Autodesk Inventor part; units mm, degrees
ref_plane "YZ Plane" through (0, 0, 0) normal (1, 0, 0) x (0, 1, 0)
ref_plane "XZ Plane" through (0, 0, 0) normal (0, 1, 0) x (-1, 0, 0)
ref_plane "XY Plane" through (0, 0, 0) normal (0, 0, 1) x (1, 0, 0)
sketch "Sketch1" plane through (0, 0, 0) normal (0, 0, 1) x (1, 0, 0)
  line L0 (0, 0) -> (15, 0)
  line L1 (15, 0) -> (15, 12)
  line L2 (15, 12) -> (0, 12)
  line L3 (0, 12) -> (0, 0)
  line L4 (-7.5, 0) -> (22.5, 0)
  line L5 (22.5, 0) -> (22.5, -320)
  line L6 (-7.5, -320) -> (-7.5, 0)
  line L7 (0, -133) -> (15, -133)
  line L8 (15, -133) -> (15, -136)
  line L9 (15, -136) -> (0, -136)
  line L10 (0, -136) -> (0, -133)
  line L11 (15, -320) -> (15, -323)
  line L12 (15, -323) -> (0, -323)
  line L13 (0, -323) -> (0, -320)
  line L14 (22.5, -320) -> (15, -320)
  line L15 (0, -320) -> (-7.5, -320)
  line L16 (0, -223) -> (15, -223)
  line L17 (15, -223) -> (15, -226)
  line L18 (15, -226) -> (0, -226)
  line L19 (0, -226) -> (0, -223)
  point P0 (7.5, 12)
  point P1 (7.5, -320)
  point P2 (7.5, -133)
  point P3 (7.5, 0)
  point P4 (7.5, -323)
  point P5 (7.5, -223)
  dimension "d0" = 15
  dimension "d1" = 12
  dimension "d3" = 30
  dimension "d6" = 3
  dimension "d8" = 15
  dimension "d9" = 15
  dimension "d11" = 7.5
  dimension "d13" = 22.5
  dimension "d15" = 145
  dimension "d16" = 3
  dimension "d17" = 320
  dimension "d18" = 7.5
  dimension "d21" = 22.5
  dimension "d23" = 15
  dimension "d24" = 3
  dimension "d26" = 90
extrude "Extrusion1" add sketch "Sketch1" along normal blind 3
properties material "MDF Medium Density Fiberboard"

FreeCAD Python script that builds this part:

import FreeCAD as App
import Part
import Sketcher
from FreeCAD import Vector
Q = App.Units.Quantity

doc = App.newDocument("Part")
body = doc.addObject("PartDesign::Body", "Body")

# Sketch on XY plane
sketch1 = body.newObject("Sketcher::SketchObject", "Sketch")
sketch1.AttachmentSupport = (doc.getObject("XY_Plane"), [""])
sketch1.MapMode = "FlatFace"
sketch1.addGeometry(Part.LineSegment(Vector(0, 12, 0), Vector(0, 0, 0)), False)
sketch1.addGeometry(Part.LineSegment(Vector(0, 0, 0), Vector(-7.5, 0, 0)), False)
sketch1.addGeometry(Part.LineSegment(Vector(-7.5, 0, 0), Vector(-7.5, -320, 0)), False)
sketch1.addGeometry(Part.LineSegment(Vector(-7.5, -320, 0), Vector(0, -320, 0)), False)
sketch1.addGeometry(Part.LineSegment(Vector(0, -320, 0), Vector(0, -323, 0)), False)
sketch1.addGeometry(Part.LineSegment(Vector(0, -323, 0), Vector(15, -323, 0)), False)
sketch1.addGeometry(Part.LineSegment(Vector(15, -323, 0), Vector(15, -320, 0)), False)
sketch1.addGeometry(Part.LineSegment(Vector(15, -320, 0), Vector(22.5, -320, 0)), False)
sketch1.addGeometry(Part.LineSegment(Vector(22.5, -320, 0), Vector(22.5, 0, 0)), False)
sketch1.addGeometry(Part.LineSegment(Vector(22.5, 0, 0), Vector(15, 0, 0)), False)
sketch1.addGeometry(Part.LineSegment(Vector(15, 0, 0), Vector(15, 12, 0)), False)
sketch1.addGeometry(Part.LineSegment(Vector(15, 12, 0), Vector(0, 12, 0)), False)
sketch1.addGeometry(Part.LineSegment(Vector(0, -133, 0), Vector(15, -133, 0)), False)
sketch1.addGeometry(Part.LineSegment(Vector(15, -133, 0), Vector(15, -136, 0)), False)
sketch1.addGeometry(Part.LineSegment(Vector(15, -136, 0), Vector(0, -136, 0)), False)
sketch1.addGeometry(Part.LineSegment(Vector(0, -136, 0), Vector(0, -133, 0)), False)
sketch1.addGeometry(Part.LineSegment(Vector(0, -226, 0), Vector(0, -223, 0)), False)
sketch1.addGeometry(Part.LineSegment(Vector(0, -223, 0), Vector(15, -223, 0)), False)
sketch1.addGeometry(Part.LineSegment(Vector(15, -223, 0), Vector(15, -226, 0)), False)
sketch1.addGeometry(Part.LineSegment(Vector(15, -226, 0), Vector(0, -226, 0)), False)
sketch1.addConstraint(Sketcher.Constraint("Coincident", 0, 2, 1, 1))
sketch1.addConstraint(Sketcher.Constraint("Coincident", 1, 2, 2, 1))
sketch1.addConstraint(Sketcher.Constraint("Coincident", 2, 2, 3, 1))
sketch1.addConstraint(Sketcher.Constraint("Coincident", 3, 2, 4, 1))
sketch1.addConstraint(Sketcher.Constraint("Coincident", 4, 2, 5, 1))
sketch1.addConstraint(Sketcher.Constraint("Coincident", 5, 2, 6, 1))
sketch1.addConstraint(Sketcher.Constraint("Coincident", 6, 2, 7, 1))
sketch1.addConstraint(Sketcher.Constraint("Coincident", 7, 2, 8, 1))
sketch1.addConstraint(Sketcher.Constraint("Coincident", 8, 2, 9, 1))
sketch1.addConstraint(Sketcher.Constraint("Coincident", 9, 2, 10, 1))
sketch1.addConstraint(Sketcher.Constraint("Coincident", 10, 2, 11, 1))
sketch1.addConstraint(Sketcher.Constraint("Coincident", 11, 2, 0, 1))
sketch1.addConstraint(Sketcher.Constraint("Coincident", 12, 2, 13, 1))
sketch1.addConstraint(Sketcher.Constraint("Coincident", 13, 2, 14, 1))
sketch1.addConstraint(Sketcher.Constraint("Coincident", 14, 2, 15, 1))
sketch1.addConstraint(Sketcher.Constraint("Coincident", 15, 2, 12, 1))
sketch1.addConstraint(Sketcher.Constraint("Coincident", 16, 2, 17, 1))
sketch1.addConstraint(Sketcher.Constraint("Coincident", 17, 2, 18, 1))
sketch1.addConstraint(Sketcher.Constraint("Coincident", 18, 2, 19, 1))
sketch1.addConstraint(Sketcher.Constraint("Coincident", 19, 2, 16, 1))
sketch1.addConstraint(Sketcher.Constraint("Vertical", 0))
sketch1.addConstraint(Sketcher.Constraint("Horizontal", 1))
sketch1.addConstraint(Sketcher.Constraint("Vertical", 2))
sketch1.addConstraint(Sketcher.Constraint("Horizontal", 3))
sketch1.addConstraint(Sketcher.Constraint("Vertical", 4))
sketch1.addConstraint(Sketcher.Constraint("Horizontal", 5))
sketch1.addConstraint(Sketcher.Constraint("Vertical", 6))
sketch1.addConstraint(Sketcher.Constraint("Horizontal", 7))
sketch1.addConstraint(Sketcher.Constraint("Vertical", 8))
sketch1.addConstraint(Sketcher.Constraint("Horizontal", 9))
sketch1.addConstraint(Sketcher.Constraint("Vertical", 10))
sketch1.addConstraint(Sketcher.Constraint("Horizontal", 11))
sketch1.addConstraint(Sketcher.Constraint("Horizontal", 12))
sketch1.addConstraint(Sketcher.Constraint("Vertical", 13))
sketch1.addConstraint(Sketcher.Constraint("Horizontal", 14))
sketch1.addConstraint(Sketcher.Constraint("Vertical", 15))
sketch1.addConstraint(Sketcher.Constraint("Vertical", 16))
sketch1.addConstraint(Sketcher.Constraint("Horizontal", 17))
sketch1.addConstraint(Sketcher.Constraint("Vertical", 18))
sketch1.addConstraint(Sketcher.Constraint("Horizontal", 19))
sketch1.addConstraint(Sketcher.Constraint("Coincident", 0, 2, -1, 1))
sketch1.addConstraint(Sketcher.Constraint("PointOnObject", 3, 2, -2))
sketch1.addConstraint(Sketcher.Constraint("PointOnObject", 8, 2, -1))
sketch1.addConstraint(Sketcher.Constraint("PointOnObject", 14, 2, -2))
sketch1.addConstraint(Sketcher.Constraint("PointOnObject", 16, 2, -2))
sketch1.addConstraint(Sketcher.Constraint("Horizontal", 3, 2, 6, 2))
sketch1.addConstraint(Sketcher.Constraint("Vertical", 6, 2, 9, 2))
sketch1.addConstraint(Sketcher.Constraint("Vertical", 10, 2, 12, 2))
sketch1.addConstraint(Sketcher.Constraint("Vertical", 13, 2, 17, 2))
sketch1.addConstraint(Sketcher.Constraint("Equal", 3, 7))
sketch1.addConstraint(Sketcher.Constraint("Equal", 6, 13))
sketch1.addConstraint(Sketcher.Constraint("Equal", 15, 16))
sketch1.addConstraint(Sketcher.Constraint("DistanceX", 5, 1, 5, 2, Q("15 mm")))
sketch1.addConstraint(Sketcher.Constraint("DistanceY", 0, 2, 0, 1, Q("12 mm")))
sketch1.addConstraint(Sketcher.Constraint("DistanceY", 2, 2, 2, 1, Q("320 mm")))
sketch1.addConstraint(Sketcher.Constraint("DistanceY", 4, 2, 4, 1, Q("3 mm")))
sketch1.addConstraint(Sketcher.Constraint("DistanceX", 1, 2, 1, 1, Q("7.5 mm")))
sketch1.addConstraint(Sketcher.Constraint("DistanceY", 12, 2, 10, 2, Q("145 mm")))
sketch1.addConstraint(Sketcher.Constraint("DistanceY", 16, 2, 15, 2, Q("90 mm")))
pad1 = body.newObject("PartDesign::Pad", "Pad")
pad1.Profile = sketch1
pad1.Length = 3

doc.recompute()
